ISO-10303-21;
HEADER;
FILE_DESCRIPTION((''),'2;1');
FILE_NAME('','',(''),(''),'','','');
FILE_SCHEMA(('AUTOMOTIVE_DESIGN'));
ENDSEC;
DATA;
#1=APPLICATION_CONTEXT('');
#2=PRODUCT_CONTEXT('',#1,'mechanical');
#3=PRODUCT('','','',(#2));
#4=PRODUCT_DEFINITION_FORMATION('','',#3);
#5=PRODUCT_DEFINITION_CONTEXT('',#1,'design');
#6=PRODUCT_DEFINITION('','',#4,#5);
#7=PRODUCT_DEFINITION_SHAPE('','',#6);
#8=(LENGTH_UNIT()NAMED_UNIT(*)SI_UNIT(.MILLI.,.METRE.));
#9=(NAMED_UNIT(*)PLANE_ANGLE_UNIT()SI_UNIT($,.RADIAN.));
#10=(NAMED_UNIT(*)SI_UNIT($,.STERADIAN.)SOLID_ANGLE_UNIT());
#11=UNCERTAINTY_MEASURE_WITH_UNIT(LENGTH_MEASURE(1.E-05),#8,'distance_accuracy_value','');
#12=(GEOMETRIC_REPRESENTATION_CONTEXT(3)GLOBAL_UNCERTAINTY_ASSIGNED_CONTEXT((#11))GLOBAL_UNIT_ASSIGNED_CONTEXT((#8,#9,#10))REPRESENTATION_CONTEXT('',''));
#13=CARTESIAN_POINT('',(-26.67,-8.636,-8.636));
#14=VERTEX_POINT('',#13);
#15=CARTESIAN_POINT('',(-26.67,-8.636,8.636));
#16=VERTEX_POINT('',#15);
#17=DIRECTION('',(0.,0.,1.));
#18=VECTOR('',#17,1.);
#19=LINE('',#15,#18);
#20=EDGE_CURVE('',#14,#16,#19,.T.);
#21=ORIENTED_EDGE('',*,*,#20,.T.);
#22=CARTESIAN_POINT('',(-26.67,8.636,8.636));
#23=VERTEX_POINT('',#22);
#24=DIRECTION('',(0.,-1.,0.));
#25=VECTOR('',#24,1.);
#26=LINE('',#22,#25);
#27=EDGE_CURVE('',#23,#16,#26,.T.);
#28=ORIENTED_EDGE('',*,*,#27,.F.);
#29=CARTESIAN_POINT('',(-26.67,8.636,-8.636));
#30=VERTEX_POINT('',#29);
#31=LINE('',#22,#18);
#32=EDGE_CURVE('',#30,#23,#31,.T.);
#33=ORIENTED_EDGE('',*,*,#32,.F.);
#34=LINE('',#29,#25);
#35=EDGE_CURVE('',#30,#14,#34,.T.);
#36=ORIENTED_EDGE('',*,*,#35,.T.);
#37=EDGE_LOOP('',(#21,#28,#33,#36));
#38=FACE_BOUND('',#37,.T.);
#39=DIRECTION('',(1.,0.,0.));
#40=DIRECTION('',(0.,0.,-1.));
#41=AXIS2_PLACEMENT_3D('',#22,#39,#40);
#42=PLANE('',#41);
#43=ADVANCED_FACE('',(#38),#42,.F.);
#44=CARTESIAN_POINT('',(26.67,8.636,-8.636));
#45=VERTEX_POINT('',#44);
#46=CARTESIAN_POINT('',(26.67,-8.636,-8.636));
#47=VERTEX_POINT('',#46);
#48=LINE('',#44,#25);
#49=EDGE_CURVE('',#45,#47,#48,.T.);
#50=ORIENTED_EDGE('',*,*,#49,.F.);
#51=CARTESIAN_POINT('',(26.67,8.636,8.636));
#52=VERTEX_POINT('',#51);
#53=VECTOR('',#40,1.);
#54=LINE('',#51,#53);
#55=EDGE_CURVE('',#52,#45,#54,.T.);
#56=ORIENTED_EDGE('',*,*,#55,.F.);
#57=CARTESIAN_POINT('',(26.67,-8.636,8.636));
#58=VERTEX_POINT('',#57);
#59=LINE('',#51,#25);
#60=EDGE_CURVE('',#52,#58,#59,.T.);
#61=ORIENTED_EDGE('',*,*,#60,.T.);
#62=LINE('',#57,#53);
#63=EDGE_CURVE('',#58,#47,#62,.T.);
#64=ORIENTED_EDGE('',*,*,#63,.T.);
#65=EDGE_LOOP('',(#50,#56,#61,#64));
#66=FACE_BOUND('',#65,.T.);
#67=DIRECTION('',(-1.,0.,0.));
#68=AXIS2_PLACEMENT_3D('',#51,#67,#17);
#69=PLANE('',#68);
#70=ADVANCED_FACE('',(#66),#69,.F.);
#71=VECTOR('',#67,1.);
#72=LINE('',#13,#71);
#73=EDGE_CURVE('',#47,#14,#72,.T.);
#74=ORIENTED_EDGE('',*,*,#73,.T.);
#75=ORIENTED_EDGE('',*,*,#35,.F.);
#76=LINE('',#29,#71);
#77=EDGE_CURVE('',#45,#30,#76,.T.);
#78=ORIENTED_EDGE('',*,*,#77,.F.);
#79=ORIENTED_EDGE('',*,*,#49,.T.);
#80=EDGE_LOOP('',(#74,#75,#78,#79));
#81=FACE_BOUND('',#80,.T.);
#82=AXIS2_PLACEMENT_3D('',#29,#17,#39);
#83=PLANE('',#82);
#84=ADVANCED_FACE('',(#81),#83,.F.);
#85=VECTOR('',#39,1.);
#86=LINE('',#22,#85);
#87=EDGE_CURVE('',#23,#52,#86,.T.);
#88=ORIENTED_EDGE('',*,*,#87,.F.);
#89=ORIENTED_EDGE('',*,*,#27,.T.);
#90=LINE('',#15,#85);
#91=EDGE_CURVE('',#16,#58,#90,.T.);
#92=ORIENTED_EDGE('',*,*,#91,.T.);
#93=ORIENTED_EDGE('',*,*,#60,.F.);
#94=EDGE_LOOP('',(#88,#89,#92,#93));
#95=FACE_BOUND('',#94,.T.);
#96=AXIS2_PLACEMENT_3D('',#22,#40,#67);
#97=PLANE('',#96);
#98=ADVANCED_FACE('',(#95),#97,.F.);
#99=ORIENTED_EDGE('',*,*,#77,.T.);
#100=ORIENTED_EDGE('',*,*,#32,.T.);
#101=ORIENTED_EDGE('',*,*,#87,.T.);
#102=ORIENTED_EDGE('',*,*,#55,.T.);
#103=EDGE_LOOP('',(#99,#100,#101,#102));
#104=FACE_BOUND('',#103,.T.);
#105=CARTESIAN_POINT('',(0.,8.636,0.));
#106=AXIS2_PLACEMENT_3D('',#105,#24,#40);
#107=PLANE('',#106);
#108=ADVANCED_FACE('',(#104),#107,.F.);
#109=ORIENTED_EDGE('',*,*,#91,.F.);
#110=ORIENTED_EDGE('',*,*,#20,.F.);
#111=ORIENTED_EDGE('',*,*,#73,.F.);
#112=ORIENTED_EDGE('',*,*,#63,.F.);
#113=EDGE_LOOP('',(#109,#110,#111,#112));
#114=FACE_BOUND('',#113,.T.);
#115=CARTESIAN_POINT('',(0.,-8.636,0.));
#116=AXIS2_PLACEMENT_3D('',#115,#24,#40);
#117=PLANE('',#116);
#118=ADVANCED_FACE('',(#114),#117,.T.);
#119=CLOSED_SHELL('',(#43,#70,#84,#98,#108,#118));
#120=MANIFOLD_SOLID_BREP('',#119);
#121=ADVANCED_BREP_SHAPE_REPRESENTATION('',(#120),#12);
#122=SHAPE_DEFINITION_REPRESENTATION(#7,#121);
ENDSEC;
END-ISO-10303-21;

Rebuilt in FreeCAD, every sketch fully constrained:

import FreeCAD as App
import Part
import Sketcher

V = App.Vector
Q = App.Units.Quantity


def add_polygon(sketch, points):
    """Adds a closed chain of lines whose ends are joined by coincident constraints."""
    first, n = sketch.GeometryCount, len(points)
    for a, b in zip(points, points[1:] + points[:1]):
        sketch.addGeometry(Part.LineSegment(App.Vector(*a, 0), App.Vector(*b, 0)), False)
    for i in range(n):
        sketch.addConstraint(Sketcher.Constraint("Coincident", first + i, 2, first + (i + 1) % n, 1))

doc = App.newDocument("Part")
params = doc.addObject("Spreadsheet::Sheet", "Params")
for row, (alias, value) in enumerate([
    ("sketch1_width", "2.1 in"),
    ("sketch1_height", "0.68 in"),
    ("pad1_length", "0.68 in"),
], start=1):
    params.set(f"A{row}", alias)
    params.set(f"B{row}", "=" + value)
    params.setAlias(f"B{row}", alias)

body = doc.addObject("PartDesign::Body", "Body")

# Sketch on XZ plane
sketch1 = body.newObject("Sketcher::SketchObject", "Sketch")
sketch1.AttachmentSupport = (doc.getObject("XZ_Plane"), [""])
sketch1.MapMode = "FlatFace"
add_polygon(sketch1, [(-26.67, -8.636), (-26.67, 8.636), (26.67, 8.636), (26.67, -8.636)])  # lines 0-3
sketch1.addConstraint([
    Sketcher.Constraint("Vertical", 0),
    Sketcher.Constraint("Horizontal", 1),
    Sketcher.Constraint("Vertical", 2),
    Sketcher.Constraint("Horizontal", 3),
    Sketcher.Constraint("Symmetric", 0, 2, 2, 2, -1, 1),
    Sketcher.Constraint("DistanceX", 1, 1, 1, 2, Q("2.1 in")),
    Sketcher.Constraint("DistanceY", 0, 1, 0, 2, Q("0.68 in")),
])
sketch1.setExpression("Constraints[9]", "Params.sketch1_width")
sketch1.setExpression("Constraints[10]", "Params.sketch1_height")
pad1 = body.newObject("PartDesign::Pad", "Pad")
pad1.Profile = sketch1
pad1.setExpression("Length", "Params.pad1_length")
pad1.Midplane = True

doc.recompute()
